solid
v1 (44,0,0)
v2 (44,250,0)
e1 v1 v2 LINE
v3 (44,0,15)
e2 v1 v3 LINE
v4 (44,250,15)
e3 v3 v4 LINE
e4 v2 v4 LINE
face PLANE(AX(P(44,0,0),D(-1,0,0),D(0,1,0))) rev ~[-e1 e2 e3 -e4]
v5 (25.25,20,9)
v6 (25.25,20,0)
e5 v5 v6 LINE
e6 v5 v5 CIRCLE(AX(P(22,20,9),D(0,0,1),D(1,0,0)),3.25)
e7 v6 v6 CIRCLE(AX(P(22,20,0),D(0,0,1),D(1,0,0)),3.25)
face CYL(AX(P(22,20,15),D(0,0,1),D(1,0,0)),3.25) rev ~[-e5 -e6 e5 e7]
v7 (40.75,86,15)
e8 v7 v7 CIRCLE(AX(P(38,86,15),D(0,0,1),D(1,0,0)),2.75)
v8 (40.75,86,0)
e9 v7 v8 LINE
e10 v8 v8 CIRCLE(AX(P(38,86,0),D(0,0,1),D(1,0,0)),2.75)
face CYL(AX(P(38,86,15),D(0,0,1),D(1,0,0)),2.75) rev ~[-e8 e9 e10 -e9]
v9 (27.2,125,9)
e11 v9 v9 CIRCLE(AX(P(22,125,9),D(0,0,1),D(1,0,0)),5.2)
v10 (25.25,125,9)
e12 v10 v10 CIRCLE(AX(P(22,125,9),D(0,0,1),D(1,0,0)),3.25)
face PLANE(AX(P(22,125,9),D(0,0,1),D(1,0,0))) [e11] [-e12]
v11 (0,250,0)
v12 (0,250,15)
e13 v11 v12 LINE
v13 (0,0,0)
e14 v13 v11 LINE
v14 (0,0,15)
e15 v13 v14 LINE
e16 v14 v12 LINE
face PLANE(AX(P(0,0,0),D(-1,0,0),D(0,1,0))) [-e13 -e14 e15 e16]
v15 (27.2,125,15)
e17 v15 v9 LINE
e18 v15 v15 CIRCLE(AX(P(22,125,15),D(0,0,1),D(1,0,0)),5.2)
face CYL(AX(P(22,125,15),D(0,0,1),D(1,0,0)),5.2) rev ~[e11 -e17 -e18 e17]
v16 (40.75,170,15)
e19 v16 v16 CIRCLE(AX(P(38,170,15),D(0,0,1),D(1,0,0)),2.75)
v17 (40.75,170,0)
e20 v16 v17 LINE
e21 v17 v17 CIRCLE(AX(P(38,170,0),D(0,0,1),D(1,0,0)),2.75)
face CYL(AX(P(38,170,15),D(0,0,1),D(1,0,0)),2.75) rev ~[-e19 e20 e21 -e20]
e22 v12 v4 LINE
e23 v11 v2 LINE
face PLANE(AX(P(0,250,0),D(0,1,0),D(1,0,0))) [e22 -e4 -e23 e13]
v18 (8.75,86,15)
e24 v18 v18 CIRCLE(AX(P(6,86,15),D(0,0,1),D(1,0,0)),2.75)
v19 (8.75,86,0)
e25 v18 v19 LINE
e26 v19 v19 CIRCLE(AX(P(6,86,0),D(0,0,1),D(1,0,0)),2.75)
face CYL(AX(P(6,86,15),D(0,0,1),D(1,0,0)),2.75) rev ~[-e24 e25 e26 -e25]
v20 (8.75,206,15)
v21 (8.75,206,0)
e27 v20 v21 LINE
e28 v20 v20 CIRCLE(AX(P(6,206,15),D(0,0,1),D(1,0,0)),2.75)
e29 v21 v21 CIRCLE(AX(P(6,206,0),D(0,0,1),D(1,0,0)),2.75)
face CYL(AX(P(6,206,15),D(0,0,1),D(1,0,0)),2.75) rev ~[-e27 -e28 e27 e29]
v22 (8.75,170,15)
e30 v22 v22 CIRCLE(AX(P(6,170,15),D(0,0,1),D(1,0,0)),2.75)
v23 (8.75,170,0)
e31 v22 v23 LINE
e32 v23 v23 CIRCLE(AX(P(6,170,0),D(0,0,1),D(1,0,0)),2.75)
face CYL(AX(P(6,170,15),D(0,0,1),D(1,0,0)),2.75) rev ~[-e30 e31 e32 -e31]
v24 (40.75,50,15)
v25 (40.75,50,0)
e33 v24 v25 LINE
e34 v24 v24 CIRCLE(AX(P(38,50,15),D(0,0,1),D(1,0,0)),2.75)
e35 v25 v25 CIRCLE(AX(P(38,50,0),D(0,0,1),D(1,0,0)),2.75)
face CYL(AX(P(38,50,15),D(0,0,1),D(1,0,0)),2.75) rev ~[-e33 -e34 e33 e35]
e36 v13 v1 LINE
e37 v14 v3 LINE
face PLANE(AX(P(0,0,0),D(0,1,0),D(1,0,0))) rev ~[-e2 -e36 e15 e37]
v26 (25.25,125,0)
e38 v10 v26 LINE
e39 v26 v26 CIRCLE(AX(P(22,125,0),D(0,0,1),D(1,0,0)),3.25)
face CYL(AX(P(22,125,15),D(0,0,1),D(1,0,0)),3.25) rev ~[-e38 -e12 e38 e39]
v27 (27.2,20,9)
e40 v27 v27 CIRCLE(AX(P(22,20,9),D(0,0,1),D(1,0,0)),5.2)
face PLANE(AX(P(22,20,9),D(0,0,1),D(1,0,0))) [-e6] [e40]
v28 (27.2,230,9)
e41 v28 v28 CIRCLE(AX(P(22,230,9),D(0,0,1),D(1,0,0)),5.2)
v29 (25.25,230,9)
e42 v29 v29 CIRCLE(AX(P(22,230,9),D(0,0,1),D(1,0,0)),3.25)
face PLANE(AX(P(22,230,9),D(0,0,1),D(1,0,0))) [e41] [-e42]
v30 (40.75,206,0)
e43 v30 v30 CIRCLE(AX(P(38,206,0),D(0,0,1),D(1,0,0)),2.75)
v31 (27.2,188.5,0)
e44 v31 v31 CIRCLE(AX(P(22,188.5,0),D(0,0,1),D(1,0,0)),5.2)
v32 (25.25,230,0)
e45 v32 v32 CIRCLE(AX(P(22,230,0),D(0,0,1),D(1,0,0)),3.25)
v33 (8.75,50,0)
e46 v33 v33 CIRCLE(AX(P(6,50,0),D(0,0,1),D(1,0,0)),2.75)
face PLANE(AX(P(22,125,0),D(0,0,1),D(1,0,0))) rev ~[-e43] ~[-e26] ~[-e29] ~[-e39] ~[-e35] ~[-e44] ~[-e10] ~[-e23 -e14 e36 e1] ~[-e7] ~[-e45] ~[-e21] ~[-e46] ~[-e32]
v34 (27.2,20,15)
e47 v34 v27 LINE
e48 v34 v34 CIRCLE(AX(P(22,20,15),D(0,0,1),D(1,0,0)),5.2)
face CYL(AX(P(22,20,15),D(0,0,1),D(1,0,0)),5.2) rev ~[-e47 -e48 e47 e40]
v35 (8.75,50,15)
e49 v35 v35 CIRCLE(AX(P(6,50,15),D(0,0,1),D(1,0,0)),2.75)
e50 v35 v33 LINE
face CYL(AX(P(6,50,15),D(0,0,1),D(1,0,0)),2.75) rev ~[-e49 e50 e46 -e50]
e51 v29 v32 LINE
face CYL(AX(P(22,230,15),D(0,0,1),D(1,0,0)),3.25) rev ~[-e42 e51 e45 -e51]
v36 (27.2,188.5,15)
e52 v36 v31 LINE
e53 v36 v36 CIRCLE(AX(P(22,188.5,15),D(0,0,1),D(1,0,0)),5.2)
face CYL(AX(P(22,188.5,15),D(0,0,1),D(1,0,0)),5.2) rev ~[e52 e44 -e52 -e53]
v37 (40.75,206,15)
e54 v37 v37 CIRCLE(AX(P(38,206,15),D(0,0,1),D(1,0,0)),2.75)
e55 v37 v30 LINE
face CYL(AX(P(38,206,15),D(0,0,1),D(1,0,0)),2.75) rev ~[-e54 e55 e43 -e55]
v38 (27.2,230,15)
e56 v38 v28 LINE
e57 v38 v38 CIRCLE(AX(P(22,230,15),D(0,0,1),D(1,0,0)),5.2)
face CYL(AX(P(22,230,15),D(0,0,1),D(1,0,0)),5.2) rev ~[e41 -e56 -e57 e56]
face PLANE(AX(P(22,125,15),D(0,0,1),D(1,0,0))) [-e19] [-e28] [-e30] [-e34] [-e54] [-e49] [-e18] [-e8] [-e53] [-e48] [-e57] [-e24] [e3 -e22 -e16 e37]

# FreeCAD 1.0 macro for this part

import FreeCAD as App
import Part
import Sketcher

V = App.Vector
Q = App.Units.Quantity

doc = App.newDocument("Part")
body = doc.addObject("PartDesign::Body", "Body")

# Sketch on XY plane
sketch1 = doc.addObject("Sketcher::SketchObject", "Sketch")
body.addObject(sketch1)
sketch1.AttachmentSupport = (doc.XY_Plane, [""])
sketch1.MapMode = "FlatFace"
sketch1.addGeometry(Part.LineSegment(V(0, 250, 0), V(0, 0, 0)), False)
sketch1.addGeometry(Part.LineSegment(V(0, 0, 0), V(44, 0, 0)), False)
sketch1.addGeometry(Part.LineSegment(V(44, 0, 0), V(44, 250, 0)), False)
sketch1.addGeometry(Part.LineSegment(V(44, 250, 0), V(0, 250, 0)), False)
sketch1.addConstraint(Sketcher.Constraint("Coincident", 0, 2, 1, 1))
sketch1.addConstraint(Sketcher.Constraint("Coincident", 1, 2, 2, 1))
sketch1.addConstraint(Sketcher.Constraint("Coincident", 2, 2, 3, 1))
sketch1.addConstraint(Sketcher.Constraint("Coincident", 3, 2, 0, 1))
sketch1.addConstraint(Sketcher.Constraint("Vertical", 0))
sketch1.addConstraint(Sketcher.Constraint("Horizontal", 1))
sketch1.addConstraint(Sketcher.Constraint("Vertical", 2))
sketch1.addConstraint(Sketcher.Constraint("Horizontal", 3))
sketch1.addConstraint(Sketcher.Constraint("Coincident", 0, 2, -1, 1))
sketch1.addConstraint(Sketcher.Constraint("DistanceX", 1, 1, 1, 2, Q("44 mm")))
sketch1.addConstraint(Sketcher.Constraint("DistanceY", 0, 2, 0, 1, Q("250 mm")))
pad1 = doc.addObject("PartDesign::Pad", "Pad")
body.addObject(pad1)
pad1.Profile = sketch1
pad1.Length = 15

# Sketch on XY plane
sketch2 = doc.addObject("Sketcher::SketchObject", "Sketch001")
body.addObject(sketch2)
sketch2.AttachmentSupport = (doc.XY_Plane, [""])
sketch2.MapMode = "FlatFace"
sketch2.AttachmentOffset = App.Placement(V(0, 0, 15), App.Rotation())
sketch2.addGeometry(Part.Circle(V(22, 230, 0), V(0, 0, 1), 3.25), False)
sketch2.addGeometry(Part.Circle(V(22, 125, 0), V(0, 0, 1), 3.25), False)
sketch2.addGeometry(Part.Circle(V(22, 20, 0), V(0, 0, 1), 3.25), False)
sketch2.addConstraint(Sketcher.Constraint("Equal", 0, 1))
sketch2.addConstraint(Sketcher.Constraint("Equal", 1, 2))
sketch2.addConstraint(Sketcher.Constraint("Vertical", 0, 3, 1, 3))
sketch2.addConstraint(Sketcher.Constraint("Vertical", 1, 3, 2, 3))
sketch2.addConstraint(Sketcher.Constraint("Diameter", 0, Q("6.5 mm")))
sketch2.addConstraint(Sketcher.Constraint("DistanceX", -1, 1, 0, 3, Q("22 mm")))
sketch2.addConstraint(Sketcher.Constraint("DistanceY", -1, 1, 0, 3, Q("230 mm")))
sketch2.addConstraint(Sketcher.Constraint("DistanceY", -1, 1, 1, 3, Q("125 mm")))
sketch2.addConstraint(Sketcher.Constraint("DistanceY", -1, 1, 2, 3, Q("20 mm")))
pocket1 = doc.addObject("PartDesign::Pocket", "Pocket")
body.addObject(pocket1)
pocket1.Profile = sketch2
pocket1.Length = 15

# Sketch on XY plane
sketch3 = doc.addObject("Sketcher::SketchObject", "Sketch002")
body.addObject(sketch3)
sketch3.AttachmentSupport = (doc.XY_Plane, [""])
sketch3.MapMode = "FlatFace"
sketch3.AttachmentOffset = App.Placement(V(0, 0, 15), App.Rotation())
sketch3.addGeometry(Part.Circle(V(6, 206, 0), V(0, 0, 1), 2.75), False)
sketch3.addGeometry(Part.Circle(V(38, 206, 0), V(0, 0, 1), 2.75), False)
sketch3.addGeometry(Part.Circle(V(6, 170, 0), V(0, 0, 1), 2.75), False)
sketch3.addGeometry(Part.Circle(V(38, 170, 0), V(0, 0, 1), 2.75), False)
sketch3.addGeometry(Part.Circle(V(6, 86, 0), V(0, 0, 1), 2.75), False)
sketch3.addGeometry(Part.Circle(V(38, 86, 0), V(0, 0, 1), 2.75), False)
sketch3.addGeometry(Part.Circle(V(6, 50, 0), V(0, 0, 1), 2.75), False)
sketch3.addGeometry(Part.Circle(V(38, 50, 0), V(0, 0, 1), 2.75), False)
sketch3.addConstraint(Sketcher.Constraint("Equal", 0, 1))
sketch3.addConstraint(Sketcher.Constraint("Equal", 1, 2))
sketch3.addConstraint(Sketcher.Constraint("Equal", 2, 3))
sketch3.addConstraint(Sketcher.Constraint("Equal", 3, 4))
sketch3.addConstraint(Sketcher.Constraint("Equal", 4, 5))
sketch3.addConstraint(Sketcher.Constraint("Equal", 5, 6))
sketch3.addConstraint(Sketcher.Constraint("Equal", 6, 7))
sketch3.addConstraint(Sketcher.Constraint("Horizontal", 0, 3, 1, 3))
sketch3.addConstraint(Sketcher.Constraint("Horizontal", 2, 3, 3, 3))
sketch3.addConstraint(Sketcher.Constraint("Horizontal", 4, 3, 5, 3))
sketch3.addConstraint(Sketcher.Constraint("Horizontal", 6, 3, 7, 3))
sketch3.addConstraint(Sketcher.Constraint("Vertical", 0, 3, 2, 3))
sketch3.addConstraint(Sketcher.Constraint("Vertical", 1, 3, 3, 3))
sketch3.addConstraint(Sketcher.Constraint("Vertical", 2, 3, 4, 3))
sketch3.addConstraint(Sketcher.Constraint("Vertical", 3, 3, 5, 3))
sketch3.addConstraint(Sketcher.Constraint("Vertical", 4, 3, 6, 3))
sketch3.addConstraint(Sketcher.Constraint("Vertical", 5, 3, 7, 3))
sketch3.addConstraint(Sketcher.Constraint("Diameter", 0, Q("5.5 mm")))
sketch3.addConstraint(Sketcher.Constraint("DistanceX", -1, 1, 0, 3, Q("6 mm")))
sketch3.addConstraint(Sketcher.Constraint("DistanceY", -1, 1, 0, 3, Q("206 mm")))
sketch3.addConstraint(Sketcher.Constraint("DistanceX", -1, 1, 1, 3, Q("38 mm")))
sketch3.addConstraint(Sketcher.Constraint("DistanceY", -1, 1, 2, 3, Q("170 mm")))
sketch3.addConstraint(Sketcher.Constraint("DistanceY", -1, 1, 4, 3, Q("86 mm")))
sketch3.addConstraint(Sketcher.Constraint("DistanceY", -1, 1, 6, 3, Q("50 mm")))
pocket2 = doc.addObject("PartDesign::Pocket", "Pocket001")
body.addObject(pocket2)
pocket2.Profile = sketch3
pocket2.Length = 15

# Sketch on XY plane
sketch4 = doc.addObject("Sketcher::SketchObject", "Sketch003")
body.addObject(sketch4)
sketch4.AttachmentSupport = (doc.XY_Plane, [""])
sketch4.MapMode = "FlatFace"
sketch4.AttachmentOffset = App.Placement(V(0, 0, 15), App.Rotation())
sketch4.addGeometry(Part.Circle(V(22, 20, 0), V(0, 0, 1), 5.2), False)
sketch4.addGeometry(Part.Circle(V(22, 125, 0), V(0, 0, 1), 5.2), False)
sketch4.addGeometry(Part.Circle(V(22, 230, 0), V(0, 0, 1), 5.2), False)
sketch4.addConstraint(Sketcher.Constraint("Equal", 0, 1))
sketch4.addConstraint(Sketcher.Constraint("Equal", 1, 2))
sketch4.addConstraint(Sketcher.Constraint("Vertical", 0, 3, 1, 3))
sketch4.addConstraint(Sketcher.Constraint("Vertical", 1, 3, 2, 3))
sketch4.addConstraint(Sketcher.Constraint("Diameter", 0, Q("10.4 mm")))
sketch4.addConstraint(Sketcher.Constraint("DistanceX", -1, 1, 0, 3, Q("22 mm")))
sketch4.addConstraint(Sketcher.Constraint("DistanceY", -1, 1, 0, 3, Q("20 mm")))
sketch4.addConstraint(Sketcher.Constraint("DistanceY", -1, 1, 1, 3, Q("125 mm")))
sketch4.addConstraint(Sketcher.Constraint("DistanceY", -1, 1, 2, 3, Q("230 mm")))
pocket3 = doc.addObject("PartDesign::Pocket", "Pocket002")
body.addObject(pocket3)
pocket3.Profile = sketch4
pocket3.Length = 6

# Sketch on XY plane
sketch5 = doc.addObject("Sketcher::SketchObject", "Sketch004")
body.addObject(sketch5)
sketch5.AttachmentSupport = (doc.XY_Plane, [""])
sketch5.MapMode = "FlatFace"
sketch5.AttachmentOffset = App.Placement(V(0, 0, 15), App.Rotation())
sketch5.addGeometry(Part.Circle(V(22, 188.5, 0), V(0, 0, 1), 5.2), False)
sketch5.addConstraint(Sketcher.Constraint("Diameter", 0, Q("10.4 mm")))
sketch5.addConstraint(Sketcher.Constraint("DistanceX", -1, 1, 0, 3, Q("22 mm")))
sketch5.addConstraint(Sketcher.Constraint("DistanceY", -1, 1, 0, 3, Q("188.5 mm")))
pocket4 = doc.addObject("PartDesign::Pocket", "Pocket003")
body.addObject(pocket4)
pocket4.Profile = sketch5
pocket4.Length = 15

doc.recompute()
